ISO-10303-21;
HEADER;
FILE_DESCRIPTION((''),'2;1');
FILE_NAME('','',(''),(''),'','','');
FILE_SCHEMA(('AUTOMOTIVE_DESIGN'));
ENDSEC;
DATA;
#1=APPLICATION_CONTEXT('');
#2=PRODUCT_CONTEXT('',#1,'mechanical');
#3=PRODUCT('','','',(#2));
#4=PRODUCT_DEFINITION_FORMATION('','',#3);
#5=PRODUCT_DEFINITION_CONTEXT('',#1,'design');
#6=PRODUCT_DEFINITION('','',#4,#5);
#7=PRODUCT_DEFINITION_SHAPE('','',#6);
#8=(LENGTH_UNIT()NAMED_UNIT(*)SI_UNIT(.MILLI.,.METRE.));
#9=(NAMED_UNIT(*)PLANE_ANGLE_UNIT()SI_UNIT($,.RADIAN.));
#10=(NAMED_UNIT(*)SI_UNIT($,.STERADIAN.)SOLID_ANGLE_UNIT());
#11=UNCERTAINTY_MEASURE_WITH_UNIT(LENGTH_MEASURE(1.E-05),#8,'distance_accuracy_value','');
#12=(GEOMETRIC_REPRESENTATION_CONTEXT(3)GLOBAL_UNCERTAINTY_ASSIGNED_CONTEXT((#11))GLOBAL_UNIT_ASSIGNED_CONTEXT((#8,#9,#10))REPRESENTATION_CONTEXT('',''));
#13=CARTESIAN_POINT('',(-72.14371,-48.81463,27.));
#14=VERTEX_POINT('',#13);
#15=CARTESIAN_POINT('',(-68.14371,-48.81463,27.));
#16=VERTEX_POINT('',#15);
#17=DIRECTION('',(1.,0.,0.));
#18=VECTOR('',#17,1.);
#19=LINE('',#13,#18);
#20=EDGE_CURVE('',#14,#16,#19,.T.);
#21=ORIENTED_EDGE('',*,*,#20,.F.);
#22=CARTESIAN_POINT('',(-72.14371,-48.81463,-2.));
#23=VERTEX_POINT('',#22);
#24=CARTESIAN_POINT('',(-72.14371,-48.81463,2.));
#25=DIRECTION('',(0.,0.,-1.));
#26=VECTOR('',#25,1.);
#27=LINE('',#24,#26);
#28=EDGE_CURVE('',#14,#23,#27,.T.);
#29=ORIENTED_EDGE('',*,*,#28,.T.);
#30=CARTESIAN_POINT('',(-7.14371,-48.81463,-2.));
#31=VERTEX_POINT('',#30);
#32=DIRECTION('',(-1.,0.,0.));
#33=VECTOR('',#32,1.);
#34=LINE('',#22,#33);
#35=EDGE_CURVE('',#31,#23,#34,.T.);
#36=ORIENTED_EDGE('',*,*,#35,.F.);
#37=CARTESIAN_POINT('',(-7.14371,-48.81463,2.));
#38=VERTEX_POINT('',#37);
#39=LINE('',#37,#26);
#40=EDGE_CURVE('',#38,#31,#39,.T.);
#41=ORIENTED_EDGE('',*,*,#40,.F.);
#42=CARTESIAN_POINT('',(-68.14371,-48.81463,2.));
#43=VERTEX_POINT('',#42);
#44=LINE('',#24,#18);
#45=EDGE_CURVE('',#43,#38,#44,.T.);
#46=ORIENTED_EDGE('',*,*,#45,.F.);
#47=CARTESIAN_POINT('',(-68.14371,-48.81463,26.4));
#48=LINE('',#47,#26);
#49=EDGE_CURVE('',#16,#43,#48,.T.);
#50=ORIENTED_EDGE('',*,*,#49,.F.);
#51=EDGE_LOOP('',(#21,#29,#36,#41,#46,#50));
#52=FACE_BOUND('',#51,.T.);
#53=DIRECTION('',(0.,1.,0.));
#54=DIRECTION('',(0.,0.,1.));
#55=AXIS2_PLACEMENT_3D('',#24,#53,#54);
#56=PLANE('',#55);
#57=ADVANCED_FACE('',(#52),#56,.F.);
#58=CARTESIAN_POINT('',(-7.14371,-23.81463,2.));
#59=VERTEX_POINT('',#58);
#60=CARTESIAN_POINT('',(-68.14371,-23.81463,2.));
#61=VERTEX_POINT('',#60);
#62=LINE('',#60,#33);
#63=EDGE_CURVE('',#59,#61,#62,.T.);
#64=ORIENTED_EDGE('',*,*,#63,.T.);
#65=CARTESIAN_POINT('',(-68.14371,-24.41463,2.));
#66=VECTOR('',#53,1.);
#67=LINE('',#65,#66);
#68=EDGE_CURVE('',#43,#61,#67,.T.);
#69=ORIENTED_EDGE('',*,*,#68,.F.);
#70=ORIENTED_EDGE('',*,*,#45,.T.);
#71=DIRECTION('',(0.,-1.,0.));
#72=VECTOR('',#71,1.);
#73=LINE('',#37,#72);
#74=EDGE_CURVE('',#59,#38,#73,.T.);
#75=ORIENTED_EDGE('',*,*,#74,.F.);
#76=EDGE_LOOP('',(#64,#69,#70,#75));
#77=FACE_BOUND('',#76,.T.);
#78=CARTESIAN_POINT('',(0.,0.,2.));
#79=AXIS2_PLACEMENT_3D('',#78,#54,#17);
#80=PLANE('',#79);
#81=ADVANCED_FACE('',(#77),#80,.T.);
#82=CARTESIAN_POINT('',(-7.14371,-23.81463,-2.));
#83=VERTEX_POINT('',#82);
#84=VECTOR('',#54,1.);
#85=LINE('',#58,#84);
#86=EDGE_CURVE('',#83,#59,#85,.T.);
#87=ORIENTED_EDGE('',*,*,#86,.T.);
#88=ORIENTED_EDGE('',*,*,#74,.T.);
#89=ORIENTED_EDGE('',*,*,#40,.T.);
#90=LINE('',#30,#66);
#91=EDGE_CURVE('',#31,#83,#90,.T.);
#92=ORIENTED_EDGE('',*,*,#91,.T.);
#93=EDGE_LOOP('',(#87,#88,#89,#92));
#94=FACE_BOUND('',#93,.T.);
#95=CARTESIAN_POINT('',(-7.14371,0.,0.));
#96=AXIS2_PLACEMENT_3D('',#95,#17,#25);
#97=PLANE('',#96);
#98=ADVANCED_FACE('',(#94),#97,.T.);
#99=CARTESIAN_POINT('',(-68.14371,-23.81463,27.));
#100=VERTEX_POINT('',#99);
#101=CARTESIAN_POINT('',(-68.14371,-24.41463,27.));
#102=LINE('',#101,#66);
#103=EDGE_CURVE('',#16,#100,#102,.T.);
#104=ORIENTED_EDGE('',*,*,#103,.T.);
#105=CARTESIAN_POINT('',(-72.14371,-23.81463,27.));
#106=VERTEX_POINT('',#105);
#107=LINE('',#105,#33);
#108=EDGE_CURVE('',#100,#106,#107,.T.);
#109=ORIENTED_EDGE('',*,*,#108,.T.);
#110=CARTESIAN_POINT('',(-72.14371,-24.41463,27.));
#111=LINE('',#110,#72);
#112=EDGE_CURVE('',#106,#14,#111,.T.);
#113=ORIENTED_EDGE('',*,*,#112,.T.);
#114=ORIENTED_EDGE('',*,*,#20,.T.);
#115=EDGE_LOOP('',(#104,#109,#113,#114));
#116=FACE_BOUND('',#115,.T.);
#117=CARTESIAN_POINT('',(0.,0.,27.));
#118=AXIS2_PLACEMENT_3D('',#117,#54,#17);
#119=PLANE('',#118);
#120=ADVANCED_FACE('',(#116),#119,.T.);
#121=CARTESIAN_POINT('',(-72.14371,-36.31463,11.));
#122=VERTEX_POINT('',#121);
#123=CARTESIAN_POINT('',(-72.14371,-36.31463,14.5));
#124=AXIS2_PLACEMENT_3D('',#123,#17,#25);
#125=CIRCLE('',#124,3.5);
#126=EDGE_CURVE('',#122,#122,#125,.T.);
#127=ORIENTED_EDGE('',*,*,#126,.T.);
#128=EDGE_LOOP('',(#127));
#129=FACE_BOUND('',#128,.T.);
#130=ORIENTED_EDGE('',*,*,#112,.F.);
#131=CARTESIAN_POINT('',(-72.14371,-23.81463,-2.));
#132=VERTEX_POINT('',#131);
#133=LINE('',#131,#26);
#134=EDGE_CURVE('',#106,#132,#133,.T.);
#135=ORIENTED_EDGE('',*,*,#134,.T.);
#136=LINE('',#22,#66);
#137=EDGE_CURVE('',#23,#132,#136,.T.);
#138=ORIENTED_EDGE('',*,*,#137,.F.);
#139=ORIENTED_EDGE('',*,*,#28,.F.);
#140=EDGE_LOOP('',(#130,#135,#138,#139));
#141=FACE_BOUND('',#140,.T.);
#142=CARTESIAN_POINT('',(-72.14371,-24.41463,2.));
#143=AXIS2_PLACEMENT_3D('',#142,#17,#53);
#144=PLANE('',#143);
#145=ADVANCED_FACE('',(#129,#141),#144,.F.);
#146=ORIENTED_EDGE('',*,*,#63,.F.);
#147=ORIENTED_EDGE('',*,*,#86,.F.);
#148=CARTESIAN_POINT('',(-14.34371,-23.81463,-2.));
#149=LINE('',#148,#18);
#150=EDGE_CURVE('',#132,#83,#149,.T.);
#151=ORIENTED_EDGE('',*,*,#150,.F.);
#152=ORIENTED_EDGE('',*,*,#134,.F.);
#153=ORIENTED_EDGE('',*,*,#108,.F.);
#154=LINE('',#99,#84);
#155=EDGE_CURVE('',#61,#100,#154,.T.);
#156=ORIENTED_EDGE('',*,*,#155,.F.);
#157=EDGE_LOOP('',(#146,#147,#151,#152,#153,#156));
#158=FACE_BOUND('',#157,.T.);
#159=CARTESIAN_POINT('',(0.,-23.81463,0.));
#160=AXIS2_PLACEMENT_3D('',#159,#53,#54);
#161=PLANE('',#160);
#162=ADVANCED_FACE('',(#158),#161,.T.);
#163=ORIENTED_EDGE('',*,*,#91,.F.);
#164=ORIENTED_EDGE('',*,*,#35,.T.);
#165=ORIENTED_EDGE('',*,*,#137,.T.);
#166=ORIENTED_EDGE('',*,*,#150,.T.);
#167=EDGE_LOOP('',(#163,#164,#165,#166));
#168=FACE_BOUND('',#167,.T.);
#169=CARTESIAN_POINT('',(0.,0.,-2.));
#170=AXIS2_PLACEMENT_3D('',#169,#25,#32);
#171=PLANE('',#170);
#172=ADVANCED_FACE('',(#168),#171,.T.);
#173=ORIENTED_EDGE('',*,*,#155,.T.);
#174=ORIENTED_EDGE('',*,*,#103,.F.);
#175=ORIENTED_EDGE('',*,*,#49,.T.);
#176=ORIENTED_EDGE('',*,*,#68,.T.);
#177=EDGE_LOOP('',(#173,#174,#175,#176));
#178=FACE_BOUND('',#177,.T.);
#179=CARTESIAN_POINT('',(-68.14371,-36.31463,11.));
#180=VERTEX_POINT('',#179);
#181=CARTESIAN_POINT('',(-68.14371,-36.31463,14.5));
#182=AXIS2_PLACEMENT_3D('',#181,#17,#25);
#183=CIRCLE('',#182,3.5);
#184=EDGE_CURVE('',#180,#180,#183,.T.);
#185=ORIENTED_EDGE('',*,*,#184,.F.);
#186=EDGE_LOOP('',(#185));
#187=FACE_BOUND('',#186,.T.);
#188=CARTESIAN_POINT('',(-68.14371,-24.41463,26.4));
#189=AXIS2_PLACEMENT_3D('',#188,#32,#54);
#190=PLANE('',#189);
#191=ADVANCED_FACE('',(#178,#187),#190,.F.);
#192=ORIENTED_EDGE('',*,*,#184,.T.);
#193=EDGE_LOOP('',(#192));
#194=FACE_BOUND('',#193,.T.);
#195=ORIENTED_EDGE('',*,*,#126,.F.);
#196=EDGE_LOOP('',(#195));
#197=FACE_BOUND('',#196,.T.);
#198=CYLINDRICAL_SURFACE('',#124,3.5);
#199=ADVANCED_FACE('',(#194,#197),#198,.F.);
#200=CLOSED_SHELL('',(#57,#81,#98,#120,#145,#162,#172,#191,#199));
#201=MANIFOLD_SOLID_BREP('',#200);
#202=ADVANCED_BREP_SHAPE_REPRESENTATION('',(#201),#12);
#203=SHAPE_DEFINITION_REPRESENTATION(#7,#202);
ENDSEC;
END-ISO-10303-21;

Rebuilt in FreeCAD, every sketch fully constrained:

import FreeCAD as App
import Part
import Sketcher
from FreeCAD import Vector

doc = App.newDocument("Part")
body = doc.addObject("PartDesign::Body", "Body")

sketch1 = body.newObject("Sketcher::SketchObject", "Sketch")
sketch1.AttachmentSupport = (doc.getObject("XY_Plane"), [""])
sketch1.MapMode = "FlatFace"
sketch1.addGeometry([
    Part.LineSegment(Vector(-72, -24, 0), Vector(-72, -49, 0)),
    Part.LineSegment(Vector(-72, -49, 0), Vector(-14, -49, 0)),
    Part.LineSegment(Vector(-14, -49, 0), Vector(-14, -24, 0)),
    Part.LineSegment(Vector(-14, -24, 0), Vector(-72, -24, 0)),
], False)
sketch1.addConstraint([
    Sketcher.Constraint("Coincident", 0, 2, 1, 1),
    Sketcher.Constraint("Coincident", 1, 2, 2, 1),
    Sketcher.Constraint("Coincident", 2, 2, 3, 1),
    Sketcher.Constraint("Coincident", 3, 2, 0, 1),
    Sketcher.Constraint("Vertical", 0),
    Sketcher.Constraint("Horizontal", 1),
    Sketcher.Constraint("Vertical", 2),
    Sketcher.Constraint("Horizontal", 3),
    Sketcher.Constraint("DistanceX", 1, 1, 1, 2, 57.8),
    Sketcher.Constraint("DistanceY", 0, 2, 0, 1, 24.4),
    Sketcher.Constraint("DistanceX", 0, 2, -1, 1, 72.14371),
    Sketcher.Constraint("DistanceY", 0, 2, -1, 1, 48.81463),
])
pad1 = body.newObject("PartDesign::Pad", "Pad")
pad1.Profile = sketch1
pad1.Length = 2

sketch2 = body.newObject("Sketcher::SketchObject", "Sketch001")
sketch2.AttachmentSupport = (doc.getObject("XY_Plane"), [""])
sketch2.MapMode = "FlatFace"
sketch2.AttachmentOffset = App.Placement(Vector(0, 0, 2), App.Rotation())
sketch2.addGeometry([
    Part.LineSegment(Vector(-72.1, -24.4, 0), Vector(-72.1, -48.8, 0)),
    Part.LineSegment(Vector(-72.1, -48.8, 0), Vector(-68.1, -48.8, 0)),
    Part.LineSegment(Vector(-68.1, -48.8, 0), Vector(-68.1, -24.4, 0)),
    Part.LineSegment(Vector(-68.1, -24.4, 0), Vector(-72.1, -24.4, 0)),
], False)
sketch2.addConstraint([
    Sketcher.Constraint("Coincident", 0, 2, 1, 1),
    Sketcher.Constraint("Coincident", 1, 2, 2, 1),
    Sketcher.Constraint("Coincident", 2, 2, 3, 1),
    Sketcher.Constraint("Coincident", 3, 2, 0, 1),
    Sketcher.Constraint("Vertical", 0),
    Sketcher.Constraint("Horizontal", 1),
    Sketcher.Constraint("Vertical", 2),
    Sketcher.Constraint("Horizontal", 3),
    Sketcher.Constraint("DistanceX", 1, 1, 1, 2, 4.0),
    Sketcher.Constraint("DistanceY", 0, 2, 0, 1, 24.4),
    Sketcher.Constraint("DistanceX", 0, 2, -1, 1, 72.14371),
    Sketcher.Constraint("DistanceY", 0, 2, -1, 1, 48.81463),
])
pad2 = body.newObject("PartDesign::Pad", "Pad001")
pad2.Profile = sketch2
pad2.Length = 24.4

sketch3 = body.newObject("Sketcher::SketchObject", "Sketch002")
sketch3.AttachmentSupport = (doc.getObject("YZ_Plane"), [""])
sketch3.MapMode = "FlatFace"
sketch3.AttachmentOffset = App.Placement(Vector(0, 0, -68.14371), App.Rotation())
sketch3.addGeometry(Part.Circle(Vector(-36.6, 14.2, 0), Vector(0, 0, 1), 3), False)
sketch3.addConstraint([
    Sketcher.Constraint("Diameter", 0, 6.0),
    Sketcher.Constraint("DistanceY", -1, 1, 0, 3, 14.2),
    Sketcher.Constraint("DistanceX", 0, 3, -1, 1, 36.61463),
])
pocket1 = body.newObject("PartDesign::Pocket", "Pocket")
pocket1.Profile = sketch3
pocket1.Type = "ThroughAll"

sketch4 = body.newObject("Sketcher::SketchObject", "Sketch003")
sketch4.AttachmentSupport = (doc.getObject("XY_Plane"), [""])
sketch4.MapMode = "FlatFace"
sketch4.AttachmentOffset = App.Placement(Vector(0, 0, 2), App.Rotation())
sketch4.addGeometry([
    Part.Circle(Vector(-60.1, -43.8, 0), Vector(0, 0, 1), 1.5),
    Part.Circle(Vector(-20.1, -43.8, 0), Vector(0, 0, 1), 1.5),
    Part.Circle(Vector(-20.1, -28.8, 0), Vector(0, 0, 1), 1.5),
    Part.Circle(Vector(-60.1, -28.8, 0), Vector(0, 0, 1), 1.5),
], False)
sketch4.addConstraint([
    Sketcher.Constraint("Equal", 0, 1),
    Sketcher.Constraint("Equal", 1, 2),
    Sketcher.Constraint("Equal", 2, 3),
    Sketcher.Constraint("Horizontal", 0, 3, 1, 3),
    Sketcher.Constraint("Horizontal", 2, 3, 3, 3),
    Sketcher.Constraint("Vertical", 1, 3, 2, 3),
    Sketcher.Constraint("Vertical", 0, 3, 3, 3),
    Sketcher.Constraint("Diameter", 0, 3.0),
    Sketcher.Constraint("DistanceX", 0, 3, 1, 3, 40.0),
    Sketcher.Constraint("DistanceY", 1, 3, 2, 3, 15.0),
    Sketcher.Constraint("DistanceX", 0, 3, -1, 1, 60.14371),
    Sketcher.Constraint("DistanceY", 0, 3, -1, 1, 43.81463),
])
pocket2 = body.newObject("PartDesign::Pocket", "Pocket001")
pocket2.Profile = sketch4
pocket2.Type = "ThroughAll"

sketch5 = body.newObject("Sketcher::SketchObject", "Sketch004")
sketch5.AttachmentSupport = (doc.getObject("XY_Plane"), [""])
sketch5.MapMode = "FlatFace"
sketch5.addGeometry([
    Part.LineSegment(Vector(-14, -24, 0), Vector(-14, -49, 0)),
    Part.LineSegment(Vector(-14, -49, 0), Vector(-72, -49, 0)),
    Part.LineSegment(Vector(-72, -49, 0), Vector(-72, -24, 0)),
    Part.LineSegment(Vector(-72, -24, 0), Vector(-14, -24, 0)),
], False)
sketch5.addConstraint([
    Sketcher.Constraint("Coincident", 0, 2, 1, 1),
    Sketcher.Constraint("Coincident", 1, 2, 2, 1),
    Sketcher.Constraint("Coincident", 2, 2, 3, 1),
    Sketcher.Constraint("Coincident", 3, 2, 0, 1),
    Sketcher.Constraint("Vertical", 0),
    Sketcher.Constraint("Horizontal", 1),
    Sketcher.Constraint("Vertical", 2),
    Sketcher.Constraint("Horizontal", 3),
    Sketcher.Constraint("DistanceX", 1, 2, 1, 1, 57.8),
    Sketcher.Constraint("DistanceY", 0, 2, 0, 1, 24.4),
    Sketcher.Constraint("DistanceX", 0, 2, -1, 1, 14.34371),
    Sketcher.Constraint("DistanceY", 0, 2, -1, 1, 48.81463),
])
pad3 = body.newObject("PartDesign::Pad", "Pad002")
pad3.Profile = sketch5
pad3.Length = 2
pad3.Reversed = True

sketch6 = body.newObject("Sketcher::SketchObject", "Sketch005")
sketch6.AttachmentSupport = (doc.getObject("XY_Plane"), [""])
sketch6.MapMode = "FlatFace"
sketch6.addGeometry([
    Part.Circle(Vector(-60.1, -28.8, 0), Vector(0, 0, 1), 1.5),
    Part.Circle(Vector(-20.1, -28.8, 0), Vector(0, 0, 1), 1.5),
    Part.Circle(Vector(-20.1, -43.8, 0), Vector(0, 0, 1), 1.5),
    Part.Circle(Vector(-60.1, -43.8, 0), Vector(0, 0, 1), 1.5),
], False)
sketch6.addConstraint([
    Sketcher.Constraint("Equal", 0, 1),
    Sketcher.Constraint("Equal", 1, 2),
    Sketcher.Constraint("Equal", 2, 3),
    Sketcher.Constraint("Horizontal", 0, 3, 1, 3),
    Sketcher.Constraint("Horizontal", 2, 3, 3, 3),
    Sketcher.Constraint("Vertical", 1, 3, 2, 3),
    Sketcher.Constraint("Vertical", 0, 3, 3, 3),
    Sketcher.Constraint("Diameter", 0, 3.0),
    Sketcher.Constraint("DistanceX", 0, 3, 1, 3, 40.0),
    Sketcher.Constraint("DistanceY", 2, 3, 1, 3, 15.0),
    Sketcher.Constraint("DistanceX", 0, 3, -1, 1, 60.14371),
    Sketcher.Constraint("DistanceY", 0, 3, -1, 1, 28.81463),
])
pocket3 = body.newObject("PartDesign::Pocket", "Pocket002")
pocket3.Profile = sketch6
pocket3.Length = 13

sketch7 = body.newObject("Sketcher::SketchObject", "Sketch006")
sketch7.AttachmentSupport = (doc.getObject("XY_Plane"), [""])
sketch7.MapMode = "FlatFace"
sketch7.AttachmentOffset = App.Placement(Vector(0, 0, 2), App.Rotation())
sketch7.addGeometry([
    Part.LineSegment(Vector(-72.1, -24.4, 0), Vector(-72.1, -48.8, 0)),
    Part.LineSegment(Vector(-72.1, -48.8, 0), Vector(-68.1, -48.8, 0)),
    Part.LineSegment(Vector(-68.1, -48.8, 0), Vector(-68.1, -24.4, 0)),
    Part.LineSegment(Vector(-68.1, -24.4, 0), Vector(-72.1, -24.4, 0)),
], False)
sketch7.addConstraint([
    Sketcher.Constraint("Coincident", 0, 2, 1, 1),
    Sketcher.Constraint("Coincident", 1, 2, 2, 1),
    Sketcher.Constraint("Coincident", 2, 2, 3, 1),
    Sketcher.Constraint("Coincident", 3, 2, 0, 1),
    Sketcher.Constraint("Vertical", 0),
    Sketcher.Constraint("Horizontal", 1),
    Sketcher.Constraint("Vertical", 2),
    Sketcher.Constraint("Horizontal", 3),
    Sketcher.Constraint("DistanceX", 1, 1, 1, 2, 4.0),
    Sketcher.Constraint("DistanceY", 0, 2, 0, 1, 24.4),
    Sketcher.Constraint("DistanceX", 0, 2, -1, 1, 72.14371),
    Sketcher.Constraint("DistanceY", 0, 2, -1, 1, 48.81463),
])
pad4 = body.newObject("PartDesign::Pad", "Pad003")
pad4.Profile = sketch7
pad4.Length = 25

sketch8 = body.newObject("Sketcher::SketchObject", "Sketch007")
sketch8.AttachmentSupport = (doc.getObject("XZ_Plane"), [""])
sketch8.MapMode = "FlatFace"
sketch8.AttachmentOffset = App.Placement(Vector(0, 0, 48.81463), App.Rotation())
sketch8.addGeometry([
    Part.LineSegment(Vector(-68.1, 27, 0), Vector(-72.1, 27, 0)),
    Part.LineSegment(Vector(-72.1, 27, 0), Vector(-72.1, -2, 0)),
    Part.LineSegment(Vector(-72.1, -2, 0), Vector(-14.3, -2, 0)),
    Part.LineSegment(Vector(-14.3, -2, 0), Vector(-14.3, 2, 0)),
    Part.LineSegment(Vector(-14.3, 2, 0), Vector(-68.1, 2, 0)),
    Part.LineSegment(Vector(-68.1, 2, 0), Vector(-68.1, 27, 0)),
], False)
sketch8.addConstraint([
    Sketcher.Constraint("Coincident", 0, 2, 1, 1),
    Sketcher.Constraint("Coincident", 1, 2, 2, 1),
    Sketcher.Constraint("Coincident", 2, 2, 3, 1),
    Sketcher.Constraint("Coincident", 3, 2, 4, 1),
    Sketcher.Constraint("Coincident", 4, 2, 5, 1),
    Sketcher.Constraint("Coincident", 5, 2, 0, 1),
    Sketcher.Constraint("Horizontal", 0),
    Sketcher.Constraint("Vertical", 1),
    Sketcher.Constraint("Horizontal", 2),
    Sketcher.Constraint("Vertical", 3),
    Sketcher.Constraint("Horizontal", 4),
    Sketcher.Constraint("Vertical", 5),
    Sketcher.Constraint("Equal", 0, 3),
    Sketcher.Constraint("DistanceX", 0, 2, 0, 1, 4.0),
    Sketcher.Constraint("DistanceY", 1, 2, 1, 1, 29.0),
    Sketcher.Constraint("DistanceX", 2, 1, 2, 2, 57.8),
    Sketcher.Constraint("DistanceY", -1, 1, 0, 2, 27.0),
    Sketcher.Constraint("DistanceX", 0, 2, -1, 1, 72.14371),
])
pad5 = body.newObject("PartDesign::Pad", "Pad004")
pad5.Profile = sketch8
pad5.Length = 25
pad5.Reversed = True

sketch9 = body.newObject("Sketcher::SketchObject", "Sketch008")
sketch9.AttachmentSupport = (doc.getObject("XY_Plane"), [""])
sketch9.MapMode = "FlatFace"
sketch9.AttachmentOffset = App.Placement(Vector(0, 0, 2), App.Rotation())
sketch9.addGeometry([
    Part.Circle(Vector(-58.1, -28.8, 0), Vector(0, 0, 1), 1.5),
    Part.Circle(Vector(-28.1, -28.8, 0), Vector(0, 0, 1), 1.5),
    Part.Circle(Vector(-28.1, -43.8, 0), Vector(0, 0, 1), 1.5),
    Part.Circle(Vector(-58.1, -43.8, 0), Vector(0, 0, 1), 1.5),
], False)
sketch9.addConstraint([
    Sketcher.Constraint("Equal", 0, 1),
    Sketcher.Constraint("Equal", 1, 2),
    Sketcher.Constraint("Equal", 2, 3),
    Sketcher.Constraint("Horizontal", 0, 3, 1, 3),
    Sketcher.Constraint("Horizontal", 2, 3, 3, 3),
    Sketcher.Constraint("Vertical", 1, 3, 2, 3),
    Sketcher.Constraint("Vertical", 0, 3, 3, 3),
    Sketcher.Constraint("Diameter", 0, 3.0),
    Sketcher.Constraint("DistanceX", 0, 3, 1, 3, 30.0),
    Sketcher.Constraint("DistanceY", 2, 3, 1, 3, 15.0),
    Sketcher.Constraint("DistanceX", 0, 3, -1, 1, 58.14371),
    Sketcher.Constraint("DistanceY", 0, 3, -1, 1, 28.81463),
])
pocket4 = body.newObject("PartDesign::Pocket", "Pocket003")
pocket4.Profile = sketch9
pocket4.Type = "ThroughAll"

sketch10 = body.newObject("Sketcher::SketchObject", "Sketch009")
sketch10.AttachmentSupport = (doc.getObject("YZ_Plane"), [""])
sketch10.MapMode = "FlatFace"
sketch10.AttachmentOffset = App.Placement(Vector(0, 0, -68.14371), App.Rotation())
sketch10.addGeometry(Part.Circle(Vector(-36.3, 14.5, 0), Vector(0, 0, 1), 3.5), False)
sketch10.addConstraint([
    Sketcher.Constraint("Diameter", 0, 7.0),
    Sketcher.Constraint("DistanceY", -1, 1, 0, 3, 14.5),
    Sketcher.Constraint("DistanceX", 0, 3, -1, 1, 36.31463),
])
pocket5 = body.newObject("PartDesign::Pocket", "Pocket004")
pocket5.Profile = sketch10
pocket5.Type = "ThroughAll"

sketch11 = body.newObject("Sketcher::SketchObject", "Sketch010")
sketch11.AttachmentSupport = (doc.getObject("YZ_Plane"), [""])
sketch11.MapMode = "FlatFace"
sketch11.AttachmentOffset = App.Placement(Vector(0, 0, -68.14371), App.Rotation())
sketch11.addGeometry([
    Part.LineSegment(Vector(-23.8, 2, 0), Vector(-48.8, 2, 0)),
    Part.LineSegment(Vector(-48.8, 2, 0), Vector(-48.8, -2, 0)),
    Part.LineSegment(Vector(-48.8, -2, 0), Vector(-23.8, -2, 0)),
    Part.LineSegment(Vector(-23.8, -2, 0), Vector(-23.8, 2, 0)),
], False)
sketch11.addConstraint([
    Sketcher.Constraint("Coincident", 0, 2, 1, 1),
    Sketcher.Constraint("Coincident", 1, 2, 2, 1),
    Sketcher.Constraint("Coincident", 2, 2, 3, 1),
    Sketcher.Constraint("Coincident", 3, 2, 0, 1),
    Sketcher.Constraint("Horizontal", 0),
    Sketcher.Constraint("Vertical", 1),
    Sketcher.Constraint("Horizontal", 2),
    Sketcher.Constraint("Vertical", 3),
    Sketcher.Constraint("DistanceX", 0, 2, 0, 1, 25.0),
    Sketcher.Constraint("DistanceY", 1, 2, 1, 1, 4.0),
    Sketcher.Constraint("DistanceY", -1, 1, 0, 2, 2.0),
    Sketcher.Constraint("DistanceX", 0, 2, -1, 1, 48.81463),
])
pad6 = body.newObject("PartDesign::Pad", "Pad005")
pad6.Profile = sketch11
pad6.Type = "TwoLengths"
pad6.Length = 61
pad6.Length2 = 4

doc.recompute()
